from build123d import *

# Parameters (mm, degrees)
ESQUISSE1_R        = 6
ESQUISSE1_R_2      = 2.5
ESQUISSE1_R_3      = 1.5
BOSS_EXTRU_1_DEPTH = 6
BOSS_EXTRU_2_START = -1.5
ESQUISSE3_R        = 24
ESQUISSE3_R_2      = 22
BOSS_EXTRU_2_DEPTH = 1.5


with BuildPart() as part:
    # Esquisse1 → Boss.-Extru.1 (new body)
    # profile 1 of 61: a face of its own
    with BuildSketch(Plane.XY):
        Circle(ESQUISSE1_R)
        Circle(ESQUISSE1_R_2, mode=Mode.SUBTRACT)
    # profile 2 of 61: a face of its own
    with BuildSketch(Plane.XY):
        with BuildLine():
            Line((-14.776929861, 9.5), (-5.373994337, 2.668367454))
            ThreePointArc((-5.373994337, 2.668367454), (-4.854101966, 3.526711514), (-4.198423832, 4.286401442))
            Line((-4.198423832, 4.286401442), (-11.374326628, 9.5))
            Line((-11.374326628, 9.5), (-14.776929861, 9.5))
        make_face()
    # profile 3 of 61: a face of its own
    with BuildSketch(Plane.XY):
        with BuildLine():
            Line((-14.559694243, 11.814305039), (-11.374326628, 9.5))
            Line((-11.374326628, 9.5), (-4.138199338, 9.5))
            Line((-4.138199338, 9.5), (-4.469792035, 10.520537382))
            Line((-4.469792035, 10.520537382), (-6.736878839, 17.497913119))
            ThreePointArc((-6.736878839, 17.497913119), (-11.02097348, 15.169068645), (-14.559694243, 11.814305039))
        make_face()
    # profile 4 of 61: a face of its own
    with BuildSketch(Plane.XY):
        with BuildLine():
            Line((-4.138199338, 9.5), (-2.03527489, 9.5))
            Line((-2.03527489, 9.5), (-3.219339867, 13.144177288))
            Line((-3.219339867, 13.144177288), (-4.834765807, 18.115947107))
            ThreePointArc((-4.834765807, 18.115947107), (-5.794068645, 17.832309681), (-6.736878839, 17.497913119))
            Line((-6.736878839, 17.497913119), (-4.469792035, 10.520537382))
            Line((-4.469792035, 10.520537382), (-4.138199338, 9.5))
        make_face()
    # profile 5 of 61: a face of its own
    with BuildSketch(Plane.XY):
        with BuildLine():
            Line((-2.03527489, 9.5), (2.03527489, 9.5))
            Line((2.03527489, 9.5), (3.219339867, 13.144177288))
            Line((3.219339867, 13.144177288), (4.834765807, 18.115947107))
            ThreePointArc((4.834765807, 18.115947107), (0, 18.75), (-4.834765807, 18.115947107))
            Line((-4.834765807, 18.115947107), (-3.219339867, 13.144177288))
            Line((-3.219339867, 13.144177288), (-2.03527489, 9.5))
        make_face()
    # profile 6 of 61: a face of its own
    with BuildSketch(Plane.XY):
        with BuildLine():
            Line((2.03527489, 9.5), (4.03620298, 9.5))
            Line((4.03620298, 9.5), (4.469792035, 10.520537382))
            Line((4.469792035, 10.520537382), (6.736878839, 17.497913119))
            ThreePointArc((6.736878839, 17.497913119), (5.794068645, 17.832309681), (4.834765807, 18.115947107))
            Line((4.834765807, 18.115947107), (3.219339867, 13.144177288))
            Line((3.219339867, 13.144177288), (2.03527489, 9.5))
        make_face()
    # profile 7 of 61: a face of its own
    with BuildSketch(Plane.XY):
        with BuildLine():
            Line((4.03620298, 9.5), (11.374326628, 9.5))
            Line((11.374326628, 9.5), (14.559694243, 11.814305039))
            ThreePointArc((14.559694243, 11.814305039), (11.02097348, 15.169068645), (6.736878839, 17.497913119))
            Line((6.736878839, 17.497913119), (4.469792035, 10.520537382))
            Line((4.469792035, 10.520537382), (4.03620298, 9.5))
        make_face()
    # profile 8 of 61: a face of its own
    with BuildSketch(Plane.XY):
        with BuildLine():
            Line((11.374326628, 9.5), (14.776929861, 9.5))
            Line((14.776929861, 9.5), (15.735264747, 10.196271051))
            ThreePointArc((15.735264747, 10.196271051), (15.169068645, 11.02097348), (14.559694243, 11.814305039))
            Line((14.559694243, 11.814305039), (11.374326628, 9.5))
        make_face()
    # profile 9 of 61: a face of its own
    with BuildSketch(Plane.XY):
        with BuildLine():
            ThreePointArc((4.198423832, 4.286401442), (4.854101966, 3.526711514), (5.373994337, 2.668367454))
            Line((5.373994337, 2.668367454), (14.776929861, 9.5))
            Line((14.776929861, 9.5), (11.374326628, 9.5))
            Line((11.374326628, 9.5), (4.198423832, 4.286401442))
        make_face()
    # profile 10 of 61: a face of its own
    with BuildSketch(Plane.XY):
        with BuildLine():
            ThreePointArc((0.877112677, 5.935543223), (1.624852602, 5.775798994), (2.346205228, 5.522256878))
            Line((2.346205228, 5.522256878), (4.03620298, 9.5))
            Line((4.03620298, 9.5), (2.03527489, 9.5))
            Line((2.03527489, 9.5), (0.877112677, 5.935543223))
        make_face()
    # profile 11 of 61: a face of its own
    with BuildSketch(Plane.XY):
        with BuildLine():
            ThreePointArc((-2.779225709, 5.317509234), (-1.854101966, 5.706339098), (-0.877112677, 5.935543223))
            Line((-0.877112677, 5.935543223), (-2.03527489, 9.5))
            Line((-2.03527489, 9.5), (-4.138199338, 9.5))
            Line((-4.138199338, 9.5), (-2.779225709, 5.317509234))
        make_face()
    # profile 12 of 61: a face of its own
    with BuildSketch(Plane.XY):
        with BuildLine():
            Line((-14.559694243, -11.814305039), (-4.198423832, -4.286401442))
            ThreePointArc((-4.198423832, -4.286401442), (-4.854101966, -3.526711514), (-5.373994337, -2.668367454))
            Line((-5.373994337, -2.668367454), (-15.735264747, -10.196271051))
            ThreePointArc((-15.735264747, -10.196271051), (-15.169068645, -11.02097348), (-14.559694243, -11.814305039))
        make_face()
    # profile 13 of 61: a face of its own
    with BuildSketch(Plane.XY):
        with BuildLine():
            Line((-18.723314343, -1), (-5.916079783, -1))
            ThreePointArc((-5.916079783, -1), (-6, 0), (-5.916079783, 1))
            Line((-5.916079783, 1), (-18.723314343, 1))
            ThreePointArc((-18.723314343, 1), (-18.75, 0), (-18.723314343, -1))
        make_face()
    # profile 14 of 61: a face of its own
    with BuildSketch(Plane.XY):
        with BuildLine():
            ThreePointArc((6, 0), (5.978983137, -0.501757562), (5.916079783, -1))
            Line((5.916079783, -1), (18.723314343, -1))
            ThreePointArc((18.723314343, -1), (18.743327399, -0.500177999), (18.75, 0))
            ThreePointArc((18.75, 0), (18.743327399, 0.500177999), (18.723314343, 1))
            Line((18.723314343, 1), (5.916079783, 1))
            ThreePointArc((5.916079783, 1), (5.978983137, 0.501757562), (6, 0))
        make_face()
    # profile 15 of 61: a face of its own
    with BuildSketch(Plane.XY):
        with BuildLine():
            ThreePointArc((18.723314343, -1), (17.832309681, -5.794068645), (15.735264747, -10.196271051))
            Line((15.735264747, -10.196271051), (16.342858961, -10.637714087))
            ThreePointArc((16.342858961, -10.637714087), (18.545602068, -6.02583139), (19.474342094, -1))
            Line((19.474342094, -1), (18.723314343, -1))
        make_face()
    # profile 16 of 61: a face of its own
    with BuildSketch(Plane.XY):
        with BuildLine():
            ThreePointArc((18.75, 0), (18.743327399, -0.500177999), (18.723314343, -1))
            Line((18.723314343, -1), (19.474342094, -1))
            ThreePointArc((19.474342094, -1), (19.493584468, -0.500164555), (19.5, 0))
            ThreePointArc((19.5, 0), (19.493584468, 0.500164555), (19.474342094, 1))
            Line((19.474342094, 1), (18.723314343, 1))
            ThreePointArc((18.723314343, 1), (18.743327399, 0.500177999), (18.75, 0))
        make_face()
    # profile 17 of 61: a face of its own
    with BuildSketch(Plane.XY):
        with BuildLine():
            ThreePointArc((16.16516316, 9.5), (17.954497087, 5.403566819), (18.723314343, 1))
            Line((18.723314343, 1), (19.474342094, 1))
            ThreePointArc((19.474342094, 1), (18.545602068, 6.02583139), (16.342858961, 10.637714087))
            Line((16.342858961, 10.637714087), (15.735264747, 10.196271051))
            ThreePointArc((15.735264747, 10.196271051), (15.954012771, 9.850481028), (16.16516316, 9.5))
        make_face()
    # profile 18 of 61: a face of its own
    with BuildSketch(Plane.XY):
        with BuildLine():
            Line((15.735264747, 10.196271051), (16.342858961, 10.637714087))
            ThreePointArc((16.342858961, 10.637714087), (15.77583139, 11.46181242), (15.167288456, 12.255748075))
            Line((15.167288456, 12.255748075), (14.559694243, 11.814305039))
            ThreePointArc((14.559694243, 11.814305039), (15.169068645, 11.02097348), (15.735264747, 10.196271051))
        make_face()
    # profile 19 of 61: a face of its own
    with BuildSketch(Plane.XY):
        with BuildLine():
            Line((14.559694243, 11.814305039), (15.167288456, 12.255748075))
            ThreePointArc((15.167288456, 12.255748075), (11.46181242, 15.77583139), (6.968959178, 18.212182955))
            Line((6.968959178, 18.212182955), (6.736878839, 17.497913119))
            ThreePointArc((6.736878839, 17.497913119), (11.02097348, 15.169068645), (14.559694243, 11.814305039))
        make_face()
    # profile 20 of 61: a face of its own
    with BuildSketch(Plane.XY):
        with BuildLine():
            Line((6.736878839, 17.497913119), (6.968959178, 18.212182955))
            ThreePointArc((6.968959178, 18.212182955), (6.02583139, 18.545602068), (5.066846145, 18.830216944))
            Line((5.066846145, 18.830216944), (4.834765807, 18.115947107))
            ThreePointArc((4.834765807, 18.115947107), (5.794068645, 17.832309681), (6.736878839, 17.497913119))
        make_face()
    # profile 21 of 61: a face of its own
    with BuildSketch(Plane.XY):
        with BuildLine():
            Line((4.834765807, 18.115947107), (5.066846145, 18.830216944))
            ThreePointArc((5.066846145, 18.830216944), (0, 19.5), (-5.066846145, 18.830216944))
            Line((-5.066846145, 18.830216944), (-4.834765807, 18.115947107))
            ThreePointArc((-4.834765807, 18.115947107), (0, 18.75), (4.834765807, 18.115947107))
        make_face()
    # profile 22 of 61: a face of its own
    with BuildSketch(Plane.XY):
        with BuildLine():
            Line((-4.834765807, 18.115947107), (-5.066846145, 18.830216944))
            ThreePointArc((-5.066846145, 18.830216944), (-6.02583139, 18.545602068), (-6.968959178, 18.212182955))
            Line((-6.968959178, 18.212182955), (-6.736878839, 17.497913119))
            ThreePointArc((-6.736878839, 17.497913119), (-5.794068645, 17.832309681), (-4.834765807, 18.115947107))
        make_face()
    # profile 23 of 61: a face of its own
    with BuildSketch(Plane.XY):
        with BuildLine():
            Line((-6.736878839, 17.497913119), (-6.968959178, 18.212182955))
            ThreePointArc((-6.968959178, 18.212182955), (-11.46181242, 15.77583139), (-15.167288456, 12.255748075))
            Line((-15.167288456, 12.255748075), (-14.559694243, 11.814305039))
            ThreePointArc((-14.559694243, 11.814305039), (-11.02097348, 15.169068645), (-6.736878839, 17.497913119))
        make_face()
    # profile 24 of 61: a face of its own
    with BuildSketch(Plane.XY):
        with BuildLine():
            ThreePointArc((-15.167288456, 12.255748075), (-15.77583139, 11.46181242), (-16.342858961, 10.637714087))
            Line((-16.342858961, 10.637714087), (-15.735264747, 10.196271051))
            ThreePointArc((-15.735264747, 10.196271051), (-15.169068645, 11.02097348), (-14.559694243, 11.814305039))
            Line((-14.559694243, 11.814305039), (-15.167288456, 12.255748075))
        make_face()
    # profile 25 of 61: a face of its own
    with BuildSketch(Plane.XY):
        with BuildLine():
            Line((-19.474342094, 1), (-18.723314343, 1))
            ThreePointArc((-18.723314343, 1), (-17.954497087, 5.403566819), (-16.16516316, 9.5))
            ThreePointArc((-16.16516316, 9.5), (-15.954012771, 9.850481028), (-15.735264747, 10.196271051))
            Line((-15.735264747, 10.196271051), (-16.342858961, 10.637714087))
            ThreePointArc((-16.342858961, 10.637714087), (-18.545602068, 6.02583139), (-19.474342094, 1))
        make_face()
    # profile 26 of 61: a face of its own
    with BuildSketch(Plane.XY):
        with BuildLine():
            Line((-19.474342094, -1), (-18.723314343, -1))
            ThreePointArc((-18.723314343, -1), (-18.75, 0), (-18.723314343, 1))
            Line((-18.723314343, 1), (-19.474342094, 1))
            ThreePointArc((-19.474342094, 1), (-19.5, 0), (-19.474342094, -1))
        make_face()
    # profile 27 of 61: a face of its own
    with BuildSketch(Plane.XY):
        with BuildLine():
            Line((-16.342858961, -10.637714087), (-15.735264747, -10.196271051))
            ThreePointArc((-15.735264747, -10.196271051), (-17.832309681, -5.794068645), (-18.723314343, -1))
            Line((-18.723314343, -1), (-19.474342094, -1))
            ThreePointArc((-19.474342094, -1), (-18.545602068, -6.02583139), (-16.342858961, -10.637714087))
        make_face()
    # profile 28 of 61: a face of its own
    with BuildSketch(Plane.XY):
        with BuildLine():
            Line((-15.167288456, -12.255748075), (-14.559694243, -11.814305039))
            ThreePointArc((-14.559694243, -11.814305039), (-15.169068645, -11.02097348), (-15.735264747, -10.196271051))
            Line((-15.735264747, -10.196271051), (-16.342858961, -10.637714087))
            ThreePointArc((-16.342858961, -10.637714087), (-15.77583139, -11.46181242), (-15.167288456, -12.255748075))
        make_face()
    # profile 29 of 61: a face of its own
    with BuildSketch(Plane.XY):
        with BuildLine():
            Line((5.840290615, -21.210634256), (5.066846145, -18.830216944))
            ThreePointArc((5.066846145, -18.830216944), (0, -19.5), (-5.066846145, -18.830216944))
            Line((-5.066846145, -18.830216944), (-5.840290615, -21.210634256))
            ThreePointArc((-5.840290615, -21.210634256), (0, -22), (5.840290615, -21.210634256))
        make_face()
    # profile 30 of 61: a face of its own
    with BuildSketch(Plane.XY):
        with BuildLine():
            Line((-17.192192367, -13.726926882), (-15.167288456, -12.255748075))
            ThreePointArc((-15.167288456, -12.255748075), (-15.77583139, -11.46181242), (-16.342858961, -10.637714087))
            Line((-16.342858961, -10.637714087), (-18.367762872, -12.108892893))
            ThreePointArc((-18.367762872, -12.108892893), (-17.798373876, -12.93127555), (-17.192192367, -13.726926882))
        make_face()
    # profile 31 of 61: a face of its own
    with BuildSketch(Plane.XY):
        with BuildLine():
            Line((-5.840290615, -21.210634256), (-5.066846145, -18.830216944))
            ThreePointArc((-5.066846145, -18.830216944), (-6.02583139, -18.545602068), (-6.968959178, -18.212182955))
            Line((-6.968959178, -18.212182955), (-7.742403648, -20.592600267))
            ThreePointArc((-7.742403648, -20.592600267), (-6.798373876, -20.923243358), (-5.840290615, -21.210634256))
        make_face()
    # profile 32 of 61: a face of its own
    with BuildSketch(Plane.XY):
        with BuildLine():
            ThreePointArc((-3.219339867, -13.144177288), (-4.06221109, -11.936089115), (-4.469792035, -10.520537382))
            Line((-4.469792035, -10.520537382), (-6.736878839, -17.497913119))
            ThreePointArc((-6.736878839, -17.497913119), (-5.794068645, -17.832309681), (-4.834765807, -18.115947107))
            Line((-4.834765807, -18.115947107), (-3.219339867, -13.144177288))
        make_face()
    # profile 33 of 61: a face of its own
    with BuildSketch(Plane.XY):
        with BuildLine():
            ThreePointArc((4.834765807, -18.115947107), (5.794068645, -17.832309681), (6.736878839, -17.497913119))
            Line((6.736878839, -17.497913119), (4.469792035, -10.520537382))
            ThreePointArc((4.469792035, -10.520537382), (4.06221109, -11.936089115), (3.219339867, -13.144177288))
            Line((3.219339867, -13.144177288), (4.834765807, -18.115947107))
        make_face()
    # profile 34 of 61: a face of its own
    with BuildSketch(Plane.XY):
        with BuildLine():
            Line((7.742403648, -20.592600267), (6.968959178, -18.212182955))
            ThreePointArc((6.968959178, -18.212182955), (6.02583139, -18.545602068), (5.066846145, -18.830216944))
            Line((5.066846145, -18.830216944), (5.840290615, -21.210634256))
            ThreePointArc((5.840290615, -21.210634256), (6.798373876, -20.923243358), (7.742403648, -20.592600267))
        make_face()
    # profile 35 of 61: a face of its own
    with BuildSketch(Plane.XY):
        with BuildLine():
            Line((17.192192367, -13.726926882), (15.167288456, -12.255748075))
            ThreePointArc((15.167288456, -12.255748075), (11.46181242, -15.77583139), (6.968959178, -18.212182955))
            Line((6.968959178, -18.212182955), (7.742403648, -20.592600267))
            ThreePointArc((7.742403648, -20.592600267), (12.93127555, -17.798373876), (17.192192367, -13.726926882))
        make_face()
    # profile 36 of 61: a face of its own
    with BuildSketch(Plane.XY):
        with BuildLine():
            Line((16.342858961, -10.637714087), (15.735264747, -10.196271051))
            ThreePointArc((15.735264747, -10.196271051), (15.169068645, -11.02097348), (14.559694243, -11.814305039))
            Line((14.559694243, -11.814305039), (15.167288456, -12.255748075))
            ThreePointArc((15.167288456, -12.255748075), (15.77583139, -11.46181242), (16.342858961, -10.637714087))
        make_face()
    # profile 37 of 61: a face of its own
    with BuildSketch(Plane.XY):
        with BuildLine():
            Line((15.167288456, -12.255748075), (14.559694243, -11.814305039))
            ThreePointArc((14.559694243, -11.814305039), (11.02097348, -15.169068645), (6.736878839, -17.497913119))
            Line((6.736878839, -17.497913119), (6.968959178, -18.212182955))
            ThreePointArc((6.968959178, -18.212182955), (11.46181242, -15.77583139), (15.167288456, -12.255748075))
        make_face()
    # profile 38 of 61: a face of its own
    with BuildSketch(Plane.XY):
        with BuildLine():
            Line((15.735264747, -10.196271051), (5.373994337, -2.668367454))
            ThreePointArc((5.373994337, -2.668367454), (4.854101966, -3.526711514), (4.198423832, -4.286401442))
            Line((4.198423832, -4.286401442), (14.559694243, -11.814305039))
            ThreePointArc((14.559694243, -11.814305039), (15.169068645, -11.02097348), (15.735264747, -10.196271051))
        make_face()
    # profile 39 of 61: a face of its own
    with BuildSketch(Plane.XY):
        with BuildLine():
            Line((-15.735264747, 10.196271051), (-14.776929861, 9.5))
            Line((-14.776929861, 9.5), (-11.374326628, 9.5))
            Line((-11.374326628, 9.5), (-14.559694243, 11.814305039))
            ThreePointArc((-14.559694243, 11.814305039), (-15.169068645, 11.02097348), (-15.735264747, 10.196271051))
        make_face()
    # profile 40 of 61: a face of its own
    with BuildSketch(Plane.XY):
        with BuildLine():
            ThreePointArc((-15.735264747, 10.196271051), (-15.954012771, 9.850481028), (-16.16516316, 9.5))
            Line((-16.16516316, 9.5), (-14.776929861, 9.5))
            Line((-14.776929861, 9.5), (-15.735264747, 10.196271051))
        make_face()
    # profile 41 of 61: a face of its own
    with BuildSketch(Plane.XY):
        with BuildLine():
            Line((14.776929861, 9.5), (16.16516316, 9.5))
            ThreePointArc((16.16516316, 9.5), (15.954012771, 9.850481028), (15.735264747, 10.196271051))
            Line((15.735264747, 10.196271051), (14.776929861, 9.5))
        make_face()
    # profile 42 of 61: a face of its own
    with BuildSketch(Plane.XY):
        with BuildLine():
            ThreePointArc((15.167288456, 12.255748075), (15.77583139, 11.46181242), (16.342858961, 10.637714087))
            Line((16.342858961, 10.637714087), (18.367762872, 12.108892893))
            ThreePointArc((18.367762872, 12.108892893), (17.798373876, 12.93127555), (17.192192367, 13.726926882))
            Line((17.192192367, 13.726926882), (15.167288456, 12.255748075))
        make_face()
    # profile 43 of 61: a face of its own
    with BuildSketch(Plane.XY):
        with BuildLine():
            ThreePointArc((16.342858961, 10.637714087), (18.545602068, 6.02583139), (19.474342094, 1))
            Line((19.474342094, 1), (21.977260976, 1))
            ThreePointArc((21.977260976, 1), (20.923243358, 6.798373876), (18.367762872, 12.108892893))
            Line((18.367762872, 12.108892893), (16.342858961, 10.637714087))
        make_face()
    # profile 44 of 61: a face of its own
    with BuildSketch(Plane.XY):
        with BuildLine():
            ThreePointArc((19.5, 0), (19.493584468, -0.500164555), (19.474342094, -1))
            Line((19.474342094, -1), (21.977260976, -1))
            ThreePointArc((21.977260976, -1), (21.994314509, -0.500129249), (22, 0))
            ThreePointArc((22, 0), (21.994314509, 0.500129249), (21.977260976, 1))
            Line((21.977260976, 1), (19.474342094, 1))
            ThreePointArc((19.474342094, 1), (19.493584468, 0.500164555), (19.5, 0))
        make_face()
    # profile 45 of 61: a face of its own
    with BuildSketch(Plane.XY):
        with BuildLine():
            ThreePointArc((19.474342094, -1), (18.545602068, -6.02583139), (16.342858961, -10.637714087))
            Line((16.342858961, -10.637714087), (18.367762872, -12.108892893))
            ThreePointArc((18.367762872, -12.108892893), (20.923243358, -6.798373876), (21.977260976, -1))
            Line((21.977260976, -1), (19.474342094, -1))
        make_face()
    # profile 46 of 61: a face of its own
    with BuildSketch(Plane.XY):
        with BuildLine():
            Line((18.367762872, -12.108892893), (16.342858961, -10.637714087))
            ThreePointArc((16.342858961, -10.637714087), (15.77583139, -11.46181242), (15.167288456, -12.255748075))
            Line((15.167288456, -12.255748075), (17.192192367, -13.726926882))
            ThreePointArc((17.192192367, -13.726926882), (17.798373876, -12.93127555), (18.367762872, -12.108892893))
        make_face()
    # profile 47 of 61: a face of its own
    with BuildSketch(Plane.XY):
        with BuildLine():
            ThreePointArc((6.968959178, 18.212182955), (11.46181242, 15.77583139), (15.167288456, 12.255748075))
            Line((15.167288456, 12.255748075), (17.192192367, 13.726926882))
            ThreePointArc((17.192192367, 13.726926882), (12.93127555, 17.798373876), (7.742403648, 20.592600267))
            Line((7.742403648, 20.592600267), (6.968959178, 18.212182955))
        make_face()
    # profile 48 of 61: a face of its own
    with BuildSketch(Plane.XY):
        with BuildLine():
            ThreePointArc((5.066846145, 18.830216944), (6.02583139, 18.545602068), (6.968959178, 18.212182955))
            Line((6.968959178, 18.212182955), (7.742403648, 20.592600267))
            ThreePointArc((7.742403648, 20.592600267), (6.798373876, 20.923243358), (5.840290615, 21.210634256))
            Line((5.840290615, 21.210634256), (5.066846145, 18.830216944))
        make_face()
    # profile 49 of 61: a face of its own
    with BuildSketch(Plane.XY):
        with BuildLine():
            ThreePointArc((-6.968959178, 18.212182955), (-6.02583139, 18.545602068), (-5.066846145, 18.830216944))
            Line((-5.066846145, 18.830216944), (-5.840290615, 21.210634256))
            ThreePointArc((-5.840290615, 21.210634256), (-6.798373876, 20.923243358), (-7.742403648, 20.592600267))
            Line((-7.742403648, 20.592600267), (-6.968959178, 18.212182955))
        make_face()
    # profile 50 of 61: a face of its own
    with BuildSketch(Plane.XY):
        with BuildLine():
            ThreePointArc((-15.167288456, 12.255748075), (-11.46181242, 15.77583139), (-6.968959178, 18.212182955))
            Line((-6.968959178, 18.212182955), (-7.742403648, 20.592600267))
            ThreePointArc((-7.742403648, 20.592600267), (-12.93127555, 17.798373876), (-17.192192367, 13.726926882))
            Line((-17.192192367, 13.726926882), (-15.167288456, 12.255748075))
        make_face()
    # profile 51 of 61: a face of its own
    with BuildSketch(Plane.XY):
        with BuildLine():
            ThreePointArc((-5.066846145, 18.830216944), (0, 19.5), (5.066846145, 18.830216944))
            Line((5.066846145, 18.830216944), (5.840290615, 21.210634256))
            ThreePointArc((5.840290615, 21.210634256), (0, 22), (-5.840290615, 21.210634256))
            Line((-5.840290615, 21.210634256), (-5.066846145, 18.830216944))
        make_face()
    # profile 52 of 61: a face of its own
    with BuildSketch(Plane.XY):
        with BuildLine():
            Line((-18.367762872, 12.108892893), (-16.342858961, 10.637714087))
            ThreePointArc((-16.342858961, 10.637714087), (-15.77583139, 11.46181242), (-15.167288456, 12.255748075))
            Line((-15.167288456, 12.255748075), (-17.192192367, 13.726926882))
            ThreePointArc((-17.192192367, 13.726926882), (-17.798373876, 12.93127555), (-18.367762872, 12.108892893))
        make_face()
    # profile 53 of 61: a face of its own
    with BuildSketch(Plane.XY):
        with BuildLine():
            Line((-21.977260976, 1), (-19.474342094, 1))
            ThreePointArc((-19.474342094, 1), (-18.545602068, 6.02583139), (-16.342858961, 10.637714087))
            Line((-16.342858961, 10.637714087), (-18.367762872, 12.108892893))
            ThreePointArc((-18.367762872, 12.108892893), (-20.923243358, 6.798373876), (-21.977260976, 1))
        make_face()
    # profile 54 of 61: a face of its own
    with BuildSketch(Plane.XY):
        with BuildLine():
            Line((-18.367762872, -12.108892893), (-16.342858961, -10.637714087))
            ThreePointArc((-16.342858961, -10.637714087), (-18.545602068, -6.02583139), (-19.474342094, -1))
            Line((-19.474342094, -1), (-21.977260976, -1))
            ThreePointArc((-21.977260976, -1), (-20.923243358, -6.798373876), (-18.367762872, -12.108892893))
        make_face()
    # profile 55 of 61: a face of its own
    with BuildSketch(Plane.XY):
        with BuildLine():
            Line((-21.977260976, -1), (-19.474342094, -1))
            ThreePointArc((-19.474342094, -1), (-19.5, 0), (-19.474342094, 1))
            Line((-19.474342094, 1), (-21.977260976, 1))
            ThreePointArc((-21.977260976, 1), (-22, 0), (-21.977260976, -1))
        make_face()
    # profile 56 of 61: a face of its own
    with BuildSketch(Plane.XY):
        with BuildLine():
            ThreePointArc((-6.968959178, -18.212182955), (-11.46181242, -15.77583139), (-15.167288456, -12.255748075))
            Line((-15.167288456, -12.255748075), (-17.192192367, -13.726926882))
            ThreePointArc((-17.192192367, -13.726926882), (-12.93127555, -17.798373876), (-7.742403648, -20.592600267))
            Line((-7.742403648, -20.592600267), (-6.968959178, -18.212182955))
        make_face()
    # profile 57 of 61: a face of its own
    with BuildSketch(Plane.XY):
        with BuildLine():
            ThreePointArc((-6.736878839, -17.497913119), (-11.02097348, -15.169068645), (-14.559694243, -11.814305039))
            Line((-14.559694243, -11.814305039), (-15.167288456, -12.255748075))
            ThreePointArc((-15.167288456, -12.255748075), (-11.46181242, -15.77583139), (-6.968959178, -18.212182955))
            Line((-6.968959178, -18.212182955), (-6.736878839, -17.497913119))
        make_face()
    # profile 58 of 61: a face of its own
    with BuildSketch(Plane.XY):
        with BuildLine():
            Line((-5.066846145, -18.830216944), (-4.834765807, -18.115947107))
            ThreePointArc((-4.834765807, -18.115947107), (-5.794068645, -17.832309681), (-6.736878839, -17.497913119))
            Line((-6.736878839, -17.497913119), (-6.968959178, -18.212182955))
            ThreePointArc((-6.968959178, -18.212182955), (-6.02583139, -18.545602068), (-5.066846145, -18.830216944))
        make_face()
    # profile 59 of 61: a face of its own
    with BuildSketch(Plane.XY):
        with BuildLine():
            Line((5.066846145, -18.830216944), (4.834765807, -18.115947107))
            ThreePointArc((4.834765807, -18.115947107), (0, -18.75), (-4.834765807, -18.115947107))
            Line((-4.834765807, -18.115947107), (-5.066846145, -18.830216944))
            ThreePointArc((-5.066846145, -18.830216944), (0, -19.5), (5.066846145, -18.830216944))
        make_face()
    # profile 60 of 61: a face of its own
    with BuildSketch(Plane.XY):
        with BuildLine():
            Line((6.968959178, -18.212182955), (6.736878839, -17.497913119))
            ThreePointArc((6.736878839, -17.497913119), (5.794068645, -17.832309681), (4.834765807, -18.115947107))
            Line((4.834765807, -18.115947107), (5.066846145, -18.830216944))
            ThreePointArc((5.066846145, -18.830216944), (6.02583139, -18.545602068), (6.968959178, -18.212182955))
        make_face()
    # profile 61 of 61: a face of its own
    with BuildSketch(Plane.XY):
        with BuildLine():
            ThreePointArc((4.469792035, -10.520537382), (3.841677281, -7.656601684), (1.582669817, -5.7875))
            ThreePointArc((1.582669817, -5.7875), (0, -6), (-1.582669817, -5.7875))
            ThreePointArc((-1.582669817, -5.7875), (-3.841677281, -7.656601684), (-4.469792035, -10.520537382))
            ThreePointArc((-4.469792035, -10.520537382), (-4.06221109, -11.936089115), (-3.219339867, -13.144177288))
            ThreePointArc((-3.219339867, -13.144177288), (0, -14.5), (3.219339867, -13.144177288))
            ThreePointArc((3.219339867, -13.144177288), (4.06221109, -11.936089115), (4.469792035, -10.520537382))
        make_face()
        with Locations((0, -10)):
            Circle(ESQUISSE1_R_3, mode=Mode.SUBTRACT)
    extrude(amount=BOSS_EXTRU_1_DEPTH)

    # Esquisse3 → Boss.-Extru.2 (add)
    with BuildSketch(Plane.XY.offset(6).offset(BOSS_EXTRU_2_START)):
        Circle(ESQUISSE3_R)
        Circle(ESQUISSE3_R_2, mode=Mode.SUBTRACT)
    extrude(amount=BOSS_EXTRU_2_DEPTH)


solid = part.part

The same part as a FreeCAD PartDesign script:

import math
import FreeCAD as App
import Part
import Sketcher
Q = App.Units.Quantity

doc = App.newDocument("Part")
params = doc.addObject("Spreadsheet::Sheet", "Params")
for row, (alias, value) in enumerate([
    ("sketch1_diameter", "5 mm"),
    ("sketch1_diameter2", "3 mm"),
    ("sketch1_radius", "22.000002 mm"),
    ("sketch1_radius2", "6 mm"),
    ("sketch1_radius3", "4.5 mm"),
    ("pad1_length", "6 mm"),
    ("sketch2_diameter", "48 mm"),
    ("sketch2_diameter2", "44 mm"),
    ("pad2_length", "1.5 mm"),
], start=1):
    params.set(f"A{row}", alias)
    params.set(f"B{row}", "=" + value)
    params.setAlias(f"B{row}", alias)

body = doc.addObject("PartDesign::Body", "Body")

# Sketch on XY plane
sketch1 = body.newObject("Sketcher::SketchObject", "Sketch")
sketch1.AttachmentSupport = (doc.getObject("XY_Plane"), [""])
sketch1.MapMode = "FlatFace"
sketch1.addGeometry([
    Part.ArcOfCircle(Part.Circle(App.Vector(0, 0, 0), App.Vector(0, 0, 1), 22), math.radians(-2.61), math.radians(0)),  # 0
    Part.ArcOfCircle(Part.Circle(App.Vector(0, 0, 0), App.Vector(0, 0, 1), 22), math.radians(0), math.radians(2.61)),  # 1
    Part.ArcOfCircle(Part.Circle(App.Vector(0, 0, 0), App.Vector(0, 0, 1), 22), math.radians(3), math.radians(33)),  # 2
    Part.ArcOfCircle(Part.Circle(App.Vector(0, 0, 0), App.Vector(0, 0, 1), 22), math.radians(33.39), math.radians(38.61)),  # 3
    Part.ArcOfCircle(Part.Circle(App.Vector(0, 0, 0), App.Vector(0, 0, 1), 22), math.radians(39), math.radians(69)),  # 4
    Part.ArcOfCircle(Part.Circle(App.Vector(0, 0, 0), App.Vector(0, 0, 1), 22), math.radians(69.39), math.radians(74.61)),  # 5
    Part.ArcOfCircle(Part.Circle(App.Vector(0, 0, 0), App.Vector(0, 0, 1), 22), math.radians(75), math.radians(105)),  # 6
    Part.ArcOfCircle(Part.Circle(App.Vector(0, 0, 0), App.Vector(0, 0, 1), 22), math.radians(105.39), math.radians(110.61)),  # 7
    Part.ArcOfCircle(Part.Circle(App.Vector(0, 0, 0), App.Vector(0, 0, 1), 22), math.radians(111), math.radians(141)),  # 8
    Part.ArcOfCircle(Part.Circle(App.Vector(0, 0, 0), App.Vector(0, 0, 1), 22), math.radians(141.39), math.radians(146.61)),  # 9
    Part.ArcOfCircle(Part.Circle(App.Vector(0, 0, 0), App.Vector(0, 0, 1), 22), math.radians(147), math.radians(177)),  # 10
    Part.ArcOfCircle(Part.Circle(App.Vector(0, 0, 0), App.Vector(0, 0, 1), 22), math.radians(177.39), math.radians(182.61)),  # 11
    Part.ArcOfCircle(Part.Circle(App.Vector(0, 0, 0), App.Vector(0, 0, 1), 22), math.radians(-177), math.radians(-147)),  # 12
    Part.ArcOfCircle(Part.Circle(App.Vector(0, 0, 0), App.Vector(0, 0, 1), 22), math.radians(-146.61), math.radians(-141.39)),  # 13
    Part.ArcOfCircle(Part.Circle(App.Vector(0, 0, 0), App.Vector(0, 0, 1), 22), math.radians(-141), math.radians(-111)),  # 14
    Part.ArcOfCircle(Part.Circle(App.Vector(0, 0, 0), App.Vector(0, 0, 1), 22), math.radians(-110.61), math.radians(-105.39)),  # 15
    Part.ArcOfCircle(Part.Circle(App.Vector(0, 0, 0), App.Vector(0, 0, 1), 22), math.radians(-105), math.radians(-75)),  # 16
    Part.ArcOfCircle(Part.Circle(App.Vector(0, 0, 0), App.Vector(0, 0, 1), 22), math.radians(-74.61), math.radians(-69.39)),  # 17
    Part.ArcOfCircle(Part.Circle(App.Vector(0, 0, 0), App.Vector(0, 0, 1), 22), math.radians(-69), math.radians(-39)),  # 18
    Part.ArcOfCircle(Part.Circle(App.Vector(0, 0, 0), App.Vector(0, 0, 1), 22), math.radians(-38.61), math.radians(-33.39)),  # 19
    Part.ArcOfCircle(Part.Circle(App.Vector(0, 0, 0), App.Vector(0, 0, 1), 22), math.radians(-33), math.radians(-3)),  # 20
    Part.ArcOfCircle(Part.Circle(App.Vector(0, 0, 0), App.Vector(0, 0, 1), 6), math.radians(9.59), math.radians(26.41)),  # 21
    Part.LineSegment(App.Vector(5.4, 2.7, 0), App.Vector(14.8, 9.5, 0)),  # 22
    Part.LineSegment(App.Vector(14.8, 9.5, 0), App.Vector(16.2, 9.5, 0)),  # 23
    Part.ArcOfCircle(Part.Circle(App.Vector(0, 0, 0), App.Vector(0, 0, 1), 18.7), math.radians(3), math.radians(30)),  # 24
    Part.LineSegment(App.Vector(18.7, 1, 0), App.Vector(5.9, 1, 0)),  # 25
    Part.ArcOfCircle(Part.Circle(App.Vector(0, 0, 0), App.Vector(0, 0, 1), 6), math.radians(46), math.radians(67)),  # 26
    Part.LineSegment(App.Vector(2.3, 5.5, 0), App.Vector(4, 9.5, 0)),  # 27
    Part.LineSegment(App.Vector(4, 9.5, 0), App.Vector(11.4, 9.5, 0)),  # 28
    Part.LineSegment(App.Vector(11.4, 9.5, 0), App.Vector(4.2, 4.3, 0)),  # 29
    Part.ArcOfCircle(Part.Circle(App.Vector(0, 0, 0), App.Vector(0, 0, 1), 6), math.radians(81.59), math.radians(98.41)),  # 30
    Part.LineSegment(App.Vector(-0.9, 5.9, 0), App.Vector(-2, 9.5, 0)),  # 31
    Part.LineSegment(App.Vector(-2, 9.5, 0), App.Vector(2, 9.5, 0)),  # 32
    Part.LineSegment(App.Vector(2, 9.5, 0), App.Vector(0.9, 5.9, 0)),  # 33
    Part.ArcOfCircle(Part.Circle(App.Vector(0, 0, 0), App.Vector(0, 0, 1), 6), math.radians(117.59), math.radians(134.41)),  # 34
    Part.LineSegment(App.Vector(-4.2, 4.3, 0), App.Vector(-11.4, 9.5, 0)),  # 35
    Part.LineSegment(App.Vector(-11.4, 9.5, 0), App.Vector(-4.1, 9.5, 0)),  # 36
    Part.LineSegment(App.Vector(-4.1, 9.5, 0), App.Vector(-2.8, 5.3, 0)),  # 37
    Part.ArcOfCircle(Part.Circle(App.Vector(0, 0, 0), App.Vector(0, 0, 1), 6), math.radians(153.59), math.radians(170.41)),  # 38
    Part.LineSegment(App.Vector(-5.9, 1, 0), App.Vector(-18.7, 1, 0)),  # 39
    Part.ArcOfCircle(Part.Circle(App.Vector(0, 0, 0), App.Vector(0, 0, 1), 18.7), math.radians(150), math.radians(177)),  # 40
    Part.LineSegment(App.Vector(-16.2, 9.5, 0), App.Vector(-14.8, 9.5, 0)),  # 41
    Part.LineSegment(App.Vector(-14.8, 9.5, 0), App.Vector(-5.4, 2.7, 0)),  # 42
    Part.ArcOfCircle(Part.Circle(App.Vector(0, 0, 0), App.Vector(0, 0, 1), 6), math.radians(-170.41), math.radians(-153.59)),  # 43
    Part.LineSegment(App.Vector(-5.4, -2.7, 0), App.Vector(-15.7, -10.2, 0)),  # 44
    Part.ArcOfCircle(Part.Circle(App.Vector(0, 0, 0), App.Vector(0, 0, 1), 18.7), math.radians(-177), math.radians(-147)),  # 45
    Part.LineSegment(App.Vector(-18.7, -1, 0), App.Vector(-5.9, -1, 0)),  # 46
    Part.ArcOfCircle(Part.Circle(App.Vector(0, 0, 0), App.Vector(0, 0, 1), 6), math.radians(-134), math.radians(-105)),  # 47
    Part.ArcOfCircle(Part.Circle(App.Vector(0, -10, 0), App.Vector(0, 0, 1), 4.5), math.radians(111), math.radians(187)),  # 48
    Part.LineSegment(App.Vector(-4.5, -10.5, 0), App.Vector(-6.7, -17.5, 0)),  # 49
    Part.ArcOfCircle(Part.Circle(App.Vector(0, 0, 0), App.Vector(0, 0, 1), 18.8), math.radians(-141), math.radians(-111)),  # 50
    Part.LineSegment(App.Vector(-14.6, -11.8, 0), App.Vector(-4.2, -4.3, 0)),  # 51
    Part.ArcOfCircle(Part.Circle(App.Vector(0, 0, 0), App.Vector(0, 0, 1), 6), math.radians(-75), math.radians(-46)),  # 52
    Part.LineSegment(App.Vector(4.2, -4.3, 0), App.Vector(14.6, -11.8, 0)),  # 53
    Part.ArcOfCircle(Part.Circle(App.Vector(0, 0, 0), App.Vector(0, 0, 1), 18.8), math.radians(-69), math.radians(-39)),  # 54
    Part.LineSegment(App.Vector(6.7, -17.5, 0), App.Vector(4.5, -10.5, 0)),  # 55
    Part.ArcOfCircle(Part.Circle(App.Vector(0, -10, 0), App.Vector(0, 0, 1), 4.5), math.radians(-7), math.radians(69)),  # 56
    Part.ArcOfCircle(Part.Circle(App.Vector(0, 0, 0), App.Vector(0, 0, 1), 6), math.radians(-26.41), math.radians(-9.59)),  # 57
    Part.LineSegment(App.Vector(5.9, -1, 0), App.Vector(18.7, -1, 0)),  # 58
    Part.ArcOfCircle(Part.Circle(App.Vector(0, 0, 0), App.Vector(0, 0, 1), 18.7), math.radians(-33), math.radians(-3)),  # 59
    Part.LineSegment(App.Vector(15.7, -10.2, 0), App.Vector(5.4, -2.7, 0)),  # 60
    Part.Circle(App.Vector(0, 0, 0), App.Vector(0, 0, 1), 2.5),  # 61
    Part.Circle(App.Vector(0, -10, 0), App.Vector(0, 0, 1), 1.5),  # 62
    Part.ArcOfCircle(Part.Circle(App.Vector(0, -10, 0), App.Vector(0, 0, 1), 4.5), math.radians(-136), math.radians(-44)),  # 63
    Part.LineSegment(App.Vector(3.2, -13.1, 0), App.Vector(4.8, -18.1, 0)),  # 64
    Part.ArcOfCircle(Part.Circle(App.Vector(0, 0, 0), App.Vector(0, 0, 1), 18.7), math.radians(-105), math.radians(-75)),  # 65
    Part.LineSegment(App.Vector(-4.8, -18.1, 0), App.Vector(-3.2, -13.1, 0)),  # 66
], False)
sketch1.addConstraint([
    Sketcher.Constraint("Tangent", 0, 2, 1, 1),
    Sketcher.Constraint("Tangent", 1, 2, 2, 1),
    Sketcher.Constraint("Tangent", 2, 2, 3, 1),
    Sketcher.Constraint("Tangent", 3, 2, 4, 1),
    Sketcher.Constraint("Tangent", 4, 2, 5, 1),
    Sketcher.Constraint("Tangent", 5, 2, 6, 1),
    Sketcher.Constraint("Tangent", 6, 2, 7, 1),
    Sketcher.Constraint("Tangent", 7, 2, 8, 1),
    Sketcher.Constraint("Tangent", 8, 2, 9, 1),
    Sketcher.Constraint("Tangent", 9, 2, 10, 1),
    Sketcher.Constraint("Tangent", 10, 2, 11, 1),
    Sketcher.Constraint("Tangent", 11, 2, 12, 1),
    Sketcher.Constraint("Tangent", 12, 2, 13, 1),
    Sketcher.Constraint("Tangent", 13, 2, 14, 1),
    Sketcher.Constraint("Tangent", 14, 2, 15, 1),
    Sketcher.Constraint("Tangent", 15, 2, 16, 1),
    Sketcher.Constraint("Tangent", 16, 2, 17, 1),
    Sketcher.Constraint("Tangent", 17, 2, 18, 1),
    Sketcher.Constraint("Tangent", 18, 2, 19, 1),
    Sketcher.Constraint("Tangent", 19, 2, 20, 1),
    Sketcher.Constraint("Tangent", 20, 2, 0, 1),
    Sketcher.Constraint("Coincident", 21, 2, 22, 1),
    Sketcher.Constraint("Coincident", 22, 2, 23, 1),
    Sketcher.Constraint("Coincident", 23, 2, 24, 2),
    Sketcher.Constraint("Coincident", 24, 1, 25, 1),
    Sketcher.Constraint("Coincident", 25, 2, 21, 1),
    Sketcher.Constraint("Coincident", 26, 2, 27, 1),
    Sketcher.Constraint("Coincident", 27, 2, 28, 1),
    Sketcher.Constraint("Coincident", 28, 2, 29, 1),
    Sketcher.Constraint("Coincident", 29, 2, 26, 1),
    Sketcher.Constraint("Coincident", 30, 2, 31, 1),
    Sketcher.Constraint("Coincident", 31, 2, 32, 1),
    Sketcher.Constraint("Coincident", 32, 2, 33, 1),
    Sketcher.Constraint("Coincident", 33, 2, 30, 1),
    Sketcher.Constraint("Coincident", 34, 2, 35, 1),
    Sketcher.Constraint("Coincident", 35, 2, 36, 1),
    Sketcher.Constraint("Coincident", 36, 2, 37, 1),
    Sketcher.Constraint("Coincident", 37, 2, 34, 1),
    Sketcher.Constraint("Coincident", 38, 2, 39, 1),
    Sketcher.Constraint("Coincident", 39, 2, 40, 2),
    Sketcher.Constraint("Coincident", 40, 1, 41, 1),
    Sketcher.Constraint("Coincident", 41, 2, 42, 1),
    Sketcher.Constraint("Coincident", 42, 2, 38, 1),
    Sketcher.Constraint("Coincident", 43, 2, 44, 1),
    Sketcher.Constraint("Coincident", 44, 2, 45, 2),
    Sketcher.Constraint("Coincident", 45, 1, 46, 1),
    Sketcher.Constraint("Coincident", 46, 2, 43, 1),
    Sketcher.Constraint("Coincident", 47, 2, 48, 1),
    Sketcher.Constraint("Coincident", 48, 2, 49, 1),
    Sketcher.Constraint("Coincident", 49, 2, 50, 2),
    Sketcher.Constraint("Coincident", 50, 1, 51, 1),
    Sketcher.Constraint("Coincident", 51, 2, 47, 1),
    Sketcher.Constraint("Coincident", 52, 2, 53, 1),
    Sketcher.Constraint("Coincident", 53, 2, 54, 2),
    Sketcher.Constraint("Coincident", 54, 1, 55, 1),
    Sketcher.Constraint("Coincident", 55, 2, 56, 1),
    Sketcher.Constraint("Coincident", 56, 2, 52, 1),
    Sketcher.Constraint("Coincident", 57, 2, 58, 1),
    Sketcher.Constraint("Coincident", 58, 2, 59, 2),
    Sketcher.Constraint("Coincident", 59, 1, 60, 1),
    Sketcher.Constraint("Coincident", 60, 2, 57, 1),
    Sketcher.Constraint("Coincident", 63, 2, 64, 1),
    Sketcher.Constraint("Coincident", 64, 2, 65, 2),
    Sketcher.Constraint("Coincident", 65, 1, 66, 1),
    Sketcher.Constraint("Coincident", 66, 2, 63, 1),
    Sketcher.Constraint("Horizontal", 23),
    Sketcher.Constraint("Horizontal", 25),
    Sketcher.Constraint("Horizontal", 28),
    Sketcher.Constraint("Horizontal", 32),
    Sketcher.Constraint("Horizontal", 36),
    Sketcher.Constraint("Horizontal", 39),
    Sketcher.Constraint("Horizontal", 41),
    Sketcher.Constraint("Horizontal", 46),
    Sketcher.Constraint("Horizontal", 58),
    Sketcher.Constraint("Coincident", 0, 3, -1, 1),
    Sketcher.Constraint("Coincident", 2, 3, -1, 1),
    Sketcher.Constraint("Coincident", 4, 3, -1, 1),
    Sketcher.Constraint("Coincident", 6, 3, -1, 1),
    Sketcher.Constraint("Coincident", 8, 3, -1, 1),
    Sketcher.Constraint("Coincident", 10, 3, -1, 1),
    Sketcher.Constraint("Coincident", 12, 3, -1, 1),
    Sketcher.Constraint("Coincident", 14, 3, -1, 1),
    Sketcher.Constraint("Coincident", 16, 3, -1, 1),
    Sketcher.Constraint("Coincident", 18, 3, -1, 1),
    Sketcher.Constraint("Coincident", 21, 3, -1, 1),
    Sketcher.Constraint("Coincident", 24, 3, -1, 1),
    Sketcher.Constraint("Coincident", 26, 3, -1, 1),
    Sketcher.Constraint("Coincident", 30, 3, -1, 1),
    Sketcher.Constraint("Coincident", 34, 3, -1, 1),
    Sketcher.Constraint("Coincident", 38, 3, -1, 1),
    Sketcher.Constraint("Coincident", 40, 3, -1, 1),
    Sketcher.Constraint("Coincident", 43, 3, -1, 1),
    Sketcher.Constraint("Coincident", 45, 3, -1, 1),
    Sketcher.Constraint("Coincident", 47, 3, -1, 1),
    Sketcher.Constraint("Coincident", 50, 3, -1, 1),
    Sketcher.Constraint("Coincident", 52, 3, -1, 1),
    Sketcher.Constraint("Coincident", 54, 3, -1, 1),
    Sketcher.Constraint("Coincident", 57, 3, -1, 1),
    Sketcher.Constraint("Coincident", 59, 3, -1, 1),
    Sketcher.Constraint("Coincident", 61, 3, -1, 1),
    Sketcher.Constraint("Coincident", 65, 3, -1, 1),
    Sketcher.Constraint("Coincident", 56, 3, 48, 3),
    Sketcher.Constraint("Coincident", 62, 3, 48, 3),
    Sketcher.Constraint("Coincident", 63, 3, 48, 3),
    Sketcher.Constraint("Equal", 21, 26),
    Sketcher.Constraint("Equal", 26, 30),
    Sketcher.Constraint("Equal", 30, 34),
    Sketcher.Constraint("Equal", 34, 38),
    Sketcher.Constraint("Equal", 24, 40),
    Sketcher.Constraint("Equal", 38, 43),
    Sketcher.Constraint("Equal", 40, 45),
    Sketcher.Constraint("Equal", 43, 47),
    Sketcher.Constraint("Equal", 45, 50),
    Sketcher.Constraint("Equal", 47, 52),
    Sketcher.Constraint("Equal", 50, 54),
    Sketcher.Constraint("Equal", 48, 56),
    Sketcher.Constraint("Equal", 52, 57),
    Sketcher.Constraint("Equal", 54, 59),
    Sketcher.Constraint("Equal", 56, 63),
    Sketcher.Constraint("Equal", 59, 65),
    Sketcher.Constraint("Symmetric", 28, 2, 35, 2, -2),
    Sketcher.Constraint("Symmetric", 22, 2, 41, 2, -2),
    Sketcher.Constraint("Symmetric", 48, 2, 55, 2, -2),
    Sketcher.Constraint("PointOnObject", 0, 2, -1),
    Sketcher.Constraint("Parallel", 22, 29),
    Sketcher.Constraint("Parallel", 31, 37),
    Sketcher.Constraint("Parallel", 35, 42),
    Sketcher.Constraint("Parallel", 29, 44),
    Sketcher.Constraint("Parallel", 33, 49),
    Sketcher.Constraint("Parallel", 44, 51),
    Sketcher.Constraint("Parallel", 42, 53),
    Sketcher.Constraint("Parallel", 37, 55),
    Sketcher.Constraint("Parallel", 53, 60),
    Sketcher.Constraint("Parallel", 55, 64),
    Sketcher.Constraint("Parallel", 49, 66),
    Sketcher.Constraint("Horizontal", 5, 2, 6, 2),
    Sketcher.Constraint("Horizontal", 4, 2, 7, 2),
    Sketcher.Constraint("Horizontal", 3, 2, 8, 2),
    Sketcher.Constraint("Horizontal", 2, 2, 9, 2),
    Sketcher.Constraint("Horizontal", 1, 2, 10, 2),
    Sketcher.Constraint("Horizontal", 15, 2, 16, 2),
    Sketcher.Constraint("Horizontal", 14, 2, 17, 2),
    Sketcher.Constraint("Horizontal", 13, 2, 18, 2),
    Sketcher.Constraint("Horizontal", 12, 2, 19, 2),
    Sketcher.Constraint("Horizontal", 11, 2, 20, 2),
    Sketcher.Constraint("Horizontal", 10, 2, 24, 1),
    Sketcher.Constraint("Horizontal", 23, 2, 27, 2),
    Sketcher.Constraint("Horizontal", 28, 2, 31, 2),
    Sketcher.Constraint("Horizontal", 30, 2, 33, 2),
    Sketcher.Constraint("Horizontal", 29, 2, 34, 2),
    Sketcher.Constraint("Horizontal", 25, 2, 38, 2),
    Sketcher.Constraint("Horizontal", 20, 2, 45, 1),
    Sketcher.Constraint("Horizontal", 51, 2, 52, 2),
    Sketcher.Constraint("Horizontal", 49, 2, 54, 1),
    Sketcher.Constraint("Horizontal", 46, 2, 57, 2),
    Sketcher.Constraint("Horizontal", 44, 2, 59, 1),
    Sketcher.Constraint("Horizontal", 64, 2, 65, 1),
    Sketcher.Constraint("Vertical", 10, 2, 11, 2),
    Sketcher.Constraint("Vertical", 9, 2, 12, 2),
    Sketcher.Constraint("Vertical", 8, 2, 13, 2),
    Sketcher.Constraint("Vertical", 7, 2, 14, 2),
    Sketcher.Constraint("Vertical", 6, 2, 15, 2),
    Sketcher.Constraint("Vertical", 42, 2, 43, 2),
    Sketcher.Constraint("Vertical", 34, 2, 51, 2),
    Sketcher.Constraint("Equal", 44, 51),
    Sketcher.Constraint("Diameter", 61, Q("5 mm")),
    Sketcher.Constraint("Diameter", 62, Q("3 mm")),
    Sketcher.Constraint("Radius", 0, Q("22.000002 mm")),
    Sketcher.Constraint("Radius", 21, Q("6 mm")),
    Sketcher.Constraint("Radius", 48, Q("4.5 mm")),
    Sketcher.Constraint("Angle", 22, Q("36 deg")),
    Sketcher.Constraint("Angle", 31, Q("108 deg")),
    Sketcher.Constraint("Radius", 24, Q("18.75 mm")),
    Sketcher.Constraint("DistanceY", 48, 3, -1, 1, Q("10 mm")),
    Sketcher.Constraint("DistanceY", -1, 1, 1, 2, Q("1 mm")),
    Sketcher.Constraint("DistanceY", -1, 1, 22, 2, Q("9.5 mm")),
    Sketcher.Constraint("DistanceX", 32, 1, 32, 2, Q("4.07055 mm")),
    Sketcher.Constraint("DistanceY", -1, 1, 4, 2, Q("20.5926 mm")),
    Sketcher.Constraint("DistanceY", -1, 1, 29, 2, Q("4.286401 mm")),
    Sketcher.Constraint("DistanceX", 36, 2, -1, 1, Q("4.138199 mm")),
    Sketcher.Constraint("Distance", 64, Q("5.227628 mm")),
    Sketcher.Constraint("DistanceX", 28, 1, 28, 2, Q("7.338124 mm")),
    Sketcher.Constraint("DistanceX", -1, 1, 5, 2, Q("5.840291 mm")),
    Sketcher.Constraint("DistanceX", 49, 2, -1, 1, Q("6.736879 mm")),
    Sketcher.Constraint("DistanceX", -1, 1, 2, 2, Q("18.367763 mm")),
    Sketcher.Constraint("DistanceX", -1, 1, 3, 2, Q("17.192192 mm")),
    Sketcher.Constraint("DistanceX", -1, 1, 26, 2, Q("2.346205 mm")),
])
sketch1.setExpression("Constraints[165]", "Params.sketch1_diameter")
sketch1.setExpression("Constraints[166]", "Params.sketch1_diameter2")
sketch1.setExpression("Constraints[167]", "Params.sketch1_radius")
sketch1.setExpression("Constraints[168]", "Params.sketch1_radius2")
sketch1.setExpression("Constraints[169]", "Params.sketch1_radius3")
pad1 = body.newObject("PartDesign::Pad", "Pad")
pad1.Profile = sketch1
pad1.setExpression("Length", "Params.pad1_length")

# Sketch on XY plane
sketch2 = body.newObject("Sketcher::SketchObject", "Sketch001")
sketch2.AttachmentSupport = (doc.getObject("XY_Plane"), [""])
sketch2.MapMode = "FlatFace"
sketch2.AttachmentOffset = App.Placement(App.Vector(0, 0, 4.5), App.Rotation())
sketch2.addGeometry([
    Part.Circle(App.Vector(0, 0, 0), App.Vector(0, 0, 1), 24),
    Part.Circle(App.Vector(0, 0, 0), App.Vector(0, 0, 1), 22),
], False)
sketch2.addConstraint([
    Sketcher.Constraint("Coincident", 0, 3, -1, 1),
    Sketcher.Constraint("Coincident", 1, 3, -1, 1),
    Sketcher.Constraint("Diameter", 0, Q("48 mm")),
    Sketcher.Constraint("Diameter", 1, Q("44 mm")),
])
sketch2.setExpression("Constraints[2]", "Params.sketch2_diameter")
sketch2.setExpression("Constraints[3]", "Params.sketch2_diameter2")
pad2 = body.newObject("PartDesign::Pad", "Pad001")
pad2.Profile = sketch2
pad2.setExpression("Length", "Params.pad2_length")

doc.recompute()
